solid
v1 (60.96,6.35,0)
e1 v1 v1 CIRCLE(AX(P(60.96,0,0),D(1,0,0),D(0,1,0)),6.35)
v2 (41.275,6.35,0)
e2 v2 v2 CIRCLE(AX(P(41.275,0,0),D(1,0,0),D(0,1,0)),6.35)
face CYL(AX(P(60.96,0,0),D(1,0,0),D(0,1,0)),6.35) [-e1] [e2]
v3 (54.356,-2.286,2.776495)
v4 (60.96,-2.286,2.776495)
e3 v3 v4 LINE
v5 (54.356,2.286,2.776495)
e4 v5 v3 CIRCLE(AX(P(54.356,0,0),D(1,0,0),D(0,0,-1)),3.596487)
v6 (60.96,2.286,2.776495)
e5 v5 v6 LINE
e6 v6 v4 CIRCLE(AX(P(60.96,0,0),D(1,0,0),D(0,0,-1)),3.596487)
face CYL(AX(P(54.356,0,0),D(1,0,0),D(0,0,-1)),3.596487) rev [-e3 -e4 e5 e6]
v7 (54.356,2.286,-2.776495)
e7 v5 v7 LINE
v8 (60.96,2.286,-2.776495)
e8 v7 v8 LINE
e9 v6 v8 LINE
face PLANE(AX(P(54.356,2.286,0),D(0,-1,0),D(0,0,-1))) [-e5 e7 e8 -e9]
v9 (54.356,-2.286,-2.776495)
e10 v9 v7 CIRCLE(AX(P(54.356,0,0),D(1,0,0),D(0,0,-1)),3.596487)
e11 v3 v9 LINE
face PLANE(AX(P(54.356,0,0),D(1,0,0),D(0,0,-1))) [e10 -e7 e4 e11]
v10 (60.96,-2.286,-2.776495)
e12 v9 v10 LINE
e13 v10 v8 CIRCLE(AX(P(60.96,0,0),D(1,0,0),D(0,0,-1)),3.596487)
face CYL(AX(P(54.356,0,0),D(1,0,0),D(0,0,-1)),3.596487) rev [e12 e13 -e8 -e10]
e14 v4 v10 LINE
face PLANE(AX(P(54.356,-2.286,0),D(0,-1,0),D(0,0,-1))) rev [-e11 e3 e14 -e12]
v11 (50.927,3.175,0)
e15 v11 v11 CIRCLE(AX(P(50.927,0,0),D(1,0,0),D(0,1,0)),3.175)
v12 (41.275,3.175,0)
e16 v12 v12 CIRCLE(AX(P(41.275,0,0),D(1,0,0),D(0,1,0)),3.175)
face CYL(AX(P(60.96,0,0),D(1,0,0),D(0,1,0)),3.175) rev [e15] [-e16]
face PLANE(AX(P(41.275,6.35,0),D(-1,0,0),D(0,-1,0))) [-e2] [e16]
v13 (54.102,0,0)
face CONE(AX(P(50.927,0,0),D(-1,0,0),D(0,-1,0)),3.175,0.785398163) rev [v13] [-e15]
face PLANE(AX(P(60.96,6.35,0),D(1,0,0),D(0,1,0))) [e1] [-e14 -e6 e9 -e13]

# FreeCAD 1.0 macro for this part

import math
import FreeCAD as App
import Part
import Sketcher
Q = App.Units.Quantity

doc = App.newDocument("Part")
body = doc.addObject("PartDesign::Body", "Body")

sketch1 = body.newObject("Sketcher::SketchObject", "Sketch")
sketch1.AttachmentSupport = (doc.getObject("XY_Plane"), [""])
sketch1.MapMode = "FlatFace"
sketch1.addGeometry([
    Part.LineSegment(App.Vector(60.96, 0, 0), App.Vector(60.96, 6.35, 0)),
    Part.LineSegment(App.Vector(60.96, 6.35, 0), App.Vector(41.275, 6.35, 0)),
    Part.LineSegment(App.Vector(41.275, 6.35, 0), App.Vector(41.275, 3.175, 0)),
    Part.LineSegment(App.Vector(41.275, 3.175, 0), App.Vector(50.927, 3.175, 0)),
    Part.LineSegment(App.Vector(50.927, 3.175, 0), App.Vector(54.102, 0, 0)),
    Part.LineSegment(App.Vector(54.102, 0, 0), App.Vector(60.96, 0, 0)),
], False)
sketch1.addConstraint([
    Sketcher.Constraint("Coincident", 0, 2, 1, 1),
    Sketcher.Constraint("Coincident", 1, 2, 2, 1),
    Sketcher.Constraint("Coincident", 2, 2, 3, 1),
    Sketcher.Constraint("Coincident", 3, 2, 4, 1),
    Sketcher.Constraint("Coincident", 4, 2, 5, 1),
    Sketcher.Constraint("Coincident", 5, 2, 0, 1),
    Sketcher.Constraint("Vertical", 0),
    Sketcher.Constraint("Horizontal", 1),
    Sketcher.Constraint("Vertical", 2),
    Sketcher.Constraint("Horizontal", 3),
    Sketcher.Constraint("Horizontal", 5),
    Sketcher.Constraint("PointOnObject", 4, 2, -1),
    Sketcher.Constraint("Angle", 4, Q("-45 deg")),
    Sketcher.Constraint("DistanceX", 3, 1, 3, 2, Q("0.38 in")),
    Sketcher.Constraint("DistanceX", 5, 1, 5, 2, Q("0.27 in")),
    Sketcher.Constraint("DistanceY", 0, 1, 0, 2, Q("0.25 in")),
    Sketcher.Constraint("DistanceX", -1, 1, 0, 2, Q("2.4 in")),
    Sketcher.Constraint("DistanceX", 1, 2, 1, 1, Q("0.775 in")),
])
revolution = body.newObject("PartDesign::Revolution", "Revolution")
revolution.Profile = sketch1
revolution.ReferenceAxis = (sketch1, ["H_Axis"])
revolution.Angle = 360

sketch2 = body.newObject("Sketcher::SketchObject", "Sketch001")
sketch2.AttachmentSupport = (doc.getObject("YZ_Plane"), [""])
sketch2.MapMode = "FlatFace"
sketch2.AttachmentOffset = App.Placement(App.Vector(0, 0, 2.4 * 25.4), App.Rotation())
sketch2.addGeometry([
    Part.LineSegment(App.Vector(2.286, -2.776495, 0), App.Vector(2.286, 2.776495, 0)),
    Part.ArcOfCircle(Part.Circle(App.Vector(0, 0, 0), App.Vector(0, 0, 1), 3.596487), math.radians(50.533995), math.radians(129.466005)),
    Part.LineSegment(App.Vector(-2.286, 2.776495, 0), App.Vector(-2.286, -2.776495, 0)),
    Part.ArcOfCircle(Part.Circle(App.Vector(0, 0, 0), App.Vector(0, 0, 1), 3.596487), math.radians(-129.466005), math.radians(-90)),
    Part.ArcOfCircle(Part.Circle(App.Vector(0, 0, 0), App.Vector(0, 0, 1), 3.596487), math.radians(-90), math.radians(-50.533995)),
], False)
sketch2.addConstraint([
    Sketcher.Constraint("Coincident", 0, 2, 1, 1),
    Sketcher.Constraint("Coincident", 1, 2, 2, 1),
    Sketcher.Constraint("Coincident", 2, 2, 3, 1),
    Sketcher.Constraint("Tangent", 3, 2, 4, 1),
    Sketcher.Constraint("Coincident", 4, 2, 0, 1),
    Sketcher.Constraint("Vertical", 0),
    Sketcher.Constraint("Vertical", 2),
    Sketcher.Constraint("Coincident", 1, 3, -1, 1),
    Sketcher.Constraint("Coincident", 3, 3, -1, 1),
    Sketcher.Constraint("Equal", 1, 3),
    Sketcher.Constraint("Equal", 3, 4),
    Sketcher.Constraint("PointOnObject", 3, 2, -2),
    Sketcher.Constraint("Horizontal", 0, 2, 1, 2),
    Sketcher.Constraint("DistanceX", -1, 1, 0, 2, Q("0.09 in")),
    Sketcher.Constraint("Radius", 1, Q("3.596487 mm")),
])
pocket1 = body.newObject("PartDesign::Pocket", "Pocket")
pocket1.Profile = sketch2
pocket1.Length = Q("0.26 in")

doc.recompute()
